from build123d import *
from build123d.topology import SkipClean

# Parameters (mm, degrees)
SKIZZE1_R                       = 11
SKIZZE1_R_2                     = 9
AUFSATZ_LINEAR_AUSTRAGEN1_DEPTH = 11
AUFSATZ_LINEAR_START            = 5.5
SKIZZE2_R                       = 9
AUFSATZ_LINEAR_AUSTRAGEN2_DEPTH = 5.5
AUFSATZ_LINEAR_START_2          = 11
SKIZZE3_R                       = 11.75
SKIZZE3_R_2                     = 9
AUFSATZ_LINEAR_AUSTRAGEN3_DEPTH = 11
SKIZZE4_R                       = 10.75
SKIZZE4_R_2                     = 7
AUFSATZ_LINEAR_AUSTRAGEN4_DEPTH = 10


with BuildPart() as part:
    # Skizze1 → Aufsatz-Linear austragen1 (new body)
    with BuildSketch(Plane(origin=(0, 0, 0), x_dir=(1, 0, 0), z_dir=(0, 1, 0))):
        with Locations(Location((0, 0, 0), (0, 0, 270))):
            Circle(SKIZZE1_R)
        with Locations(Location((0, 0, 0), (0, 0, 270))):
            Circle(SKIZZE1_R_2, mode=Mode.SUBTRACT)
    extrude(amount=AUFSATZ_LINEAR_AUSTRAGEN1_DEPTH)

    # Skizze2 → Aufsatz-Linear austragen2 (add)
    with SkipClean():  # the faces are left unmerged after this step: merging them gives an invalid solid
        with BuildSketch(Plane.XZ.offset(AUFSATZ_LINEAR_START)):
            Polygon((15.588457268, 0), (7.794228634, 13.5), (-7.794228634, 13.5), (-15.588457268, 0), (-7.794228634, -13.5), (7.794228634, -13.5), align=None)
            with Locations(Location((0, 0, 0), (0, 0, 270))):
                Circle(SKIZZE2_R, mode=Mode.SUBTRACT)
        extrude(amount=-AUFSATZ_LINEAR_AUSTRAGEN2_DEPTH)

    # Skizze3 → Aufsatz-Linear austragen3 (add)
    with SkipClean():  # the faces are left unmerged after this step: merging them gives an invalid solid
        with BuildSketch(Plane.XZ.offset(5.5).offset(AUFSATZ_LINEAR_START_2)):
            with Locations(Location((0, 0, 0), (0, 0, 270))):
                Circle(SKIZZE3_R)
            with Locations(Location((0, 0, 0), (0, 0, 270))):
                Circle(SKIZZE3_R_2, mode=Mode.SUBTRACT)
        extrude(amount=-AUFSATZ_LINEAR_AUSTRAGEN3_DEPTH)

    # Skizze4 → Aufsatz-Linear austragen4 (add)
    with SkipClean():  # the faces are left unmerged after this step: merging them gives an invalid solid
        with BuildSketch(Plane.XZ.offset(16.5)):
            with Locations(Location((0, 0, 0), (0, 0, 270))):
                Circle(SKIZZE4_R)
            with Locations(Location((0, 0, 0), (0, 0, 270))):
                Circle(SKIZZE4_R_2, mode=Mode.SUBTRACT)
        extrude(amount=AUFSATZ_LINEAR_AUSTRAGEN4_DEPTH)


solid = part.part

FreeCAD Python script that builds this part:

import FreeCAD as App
import Part
import Sketcher
from FreeCAD import Vector
Q = App.Units.Quantity


def add_polygon(sketch, points):
    """Adds a closed chain of lines whose ends are joined by coincident constraints."""
    first, n = sketch.GeometryCount, len(points)
    for a, b in zip(points, points[1:] + points[:1]):
        sketch.addGeometry(Part.LineSegment(App.Vector(*a, 0), App.Vector(*b, 0)), False)
    for i in range(n):
        sketch.addConstraint(Sketcher.Constraint("Coincident", first + i, 2, first + (i + 1) % n, 1))

doc = App.newDocument("Part")
params = doc.addObject("Spreadsheet::Sheet", "Params")
for row, (alias, value) in enumerate([
    ("sketch1_diameter", "22 mm"),
    ("sketch1_diameter2", "18 mm"),
    ("pad1_length", "11 mm"),
    ("sketch2_diameter", "18 mm"),
    ("pad2_length", "5.5 mm"),
    ("sketch3_diameter", "18 mm"),
    ("sketch3_diameter2", "23.5 mm"),
    ("pad3_length", "11 mm"),
    ("sketch4_diameter", "14 mm"),
    ("sketch4_diameter2", "21.5 mm"),
    ("pad4_length", "10 mm"),
], start=1):
    params.set(f"A{row}", alias)
    params.set(f"B{row}", "=" + value)
    params.setAlias(f"B{row}", alias)

body = doc.addObject("PartDesign::Body", "Body")

# Sketch on XZ plane
sketch1 = body.newObject("Sketcher::SketchObject", "Sketch")
sketch1.AttachmentSupport = (doc.getObject("XZ_Plane"), [""])
sketch1.MapMode = "FlatFace"
sketch1.addGeometry([
    Part.Circle(Vector(0, 0, 0), Vector(0, 0, 1), 11),
    Part.Circle(Vector(0, 0, 0), Vector(0, 0, 1), 9),
], False)
sketch1.addConstraint([
    Sketcher.Constraint("Coincident", 0, 3, -1, 1),
    Sketcher.Constraint("Coincident", 1, 3, -1, 1),
    Sketcher.Constraint("Diameter", 0, 22.0),
    Sketcher.Constraint("Diameter", 1, 18.0),
])
sketch1.setExpression("Constraints[2]", "Params.sketch1_diameter")
sketch1.setExpression("Constraints[3]", "Params.sketch1_diameter2")
pad1 = body.newObject("PartDesign::Pad", "Pad")
pad1.Profile = sketch1
pad1.setExpression("Length", "Params.pad1_length")
pad1.Reversed = True

# Sketch on XZ plane
sketch2 = body.newObject("Sketcher::SketchObject", "Sketch001")
sketch2.AttachmentSupport = (doc.getObject("XZ_Plane"), [""])
sketch2.MapMode = "FlatFace"
sketch2.AttachmentOffset = App.Placement(Vector(0, 0, 5.5), App.Rotation())
add_polygon(sketch2, [(16, 0), (8, 14), (-8, 14), (-16, 0), (-8, -14), (8, -14)])  # lines 0-5
sketch2.addGeometry(Part.Circle(Vector(0, 0, 0), Vector(0, 0, 1), 9), False)  # 6
sketch2.addConstraint([
    Sketcher.Constraint("Horizontal", 1),
    Sketcher.Constraint("Horizontal", 4),
    Sketcher.Constraint("Coincident", 6, 3, -1, 1),
    Sketcher.Constraint("Symmetric", 0, 2, 3, 2, -1, 1),
    Sketcher.Constraint("Symmetric", 2, 2, 5, 2, -1, 1),
    Sketcher.Constraint("PointOnObject", 2, 2, -1),
    Sketcher.Constraint("Parallel", 2, 5),
    Sketcher.Constraint("Vertical", 1, 2, 3, 2),
    Sketcher.Constraint("Diameter", 6, 18.0),
    Sketcher.Constraint("Angle", 0, Q("120 deg")),
    Sketcher.Constraint("DistanceY", 3, 2, 1, 2, 27.0),
    Sketcher.Constraint("DistanceX", 1, 2, 1, 1, 15.588457),
])
sketch2.setExpression("Constraints[14]", "Params.sketch2_diameter")
pad2 = body.newObject("PartDesign::Pad", "Pad001")
pad2.Profile = sketch2
pad2.setExpression("Length", "Params.pad2_length")
pad2.Reversed = True

# Sketch on XZ plane
sketch3 = body.newObject("Sketcher::SketchObject", "Sketch002")
sketch3.AttachmentSupport = (doc.getObject("XZ_Plane"), [""])
sketch3.MapMode = "FlatFace"
sketch3.AttachmentOffset = App.Placement(Vector(0, 0, 16.5), App.Rotation())
sketch3.addGeometry([
    Part.Circle(Vector(0, 0, 0), Vector(0, 0, 1), 12),
    Part.Circle(Vector(0, 0, 0), Vector(0, 0, 1), 9),
], False)
sketch3.addConstraint([
    Sketcher.Constraint("Coincident", 0, 3, -1, 1),
    Sketcher.Constraint("Coincident", 1, 3, -1, 1),
    Sketcher.Constraint("Diameter", 1, 18.0),
    Sketcher.Constraint("Diameter", 0, 23.5),
])
sketch3.setExpression("Constraints[2]", "Params.sketch3_diameter")
sketch3.setExpression("Constraints[3]", "Params.sketch3_diameter2")
pad3 = body.newObject("PartDesign::Pad", "Pad002")
pad3.Profile = sketch3
pad3.setExpression("Length", "Params.pad3_length")
pad3.Reversed = True

# Sketch on XZ plane
sketch4 = body.newObject("Sketcher::SketchObject", "Sketch003")
sketch4.AttachmentSupport = (doc.getObject("XZ_Plane"), [""])
sketch4.MapMode = "FlatFace"
sketch4.AttachmentOffset = App.Placement(Vector(0, 0, 16.5), App.Rotation())
sketch4.addGeometry([
    Part.Circle(Vector(0, 0, 0), Vector(0, 0, 1), 11),
    Part.Circle(Vector(0, 0, 0), Vector(0, 0, 1), 7),
], False)
sketch4.addConstraint([
    Sketcher.Constraint("Coincident", 0, 3, -1, 1),
    Sketcher.Constraint("Coincident", 1, 3, -1, 1),
    Sketcher.Constraint("Diameter", 1, 14.0),
    Sketcher.Constraint("Diameter", 0, 21.5),
])
sketch4.setExpression("Constraints[2]", "Params.sketch4_diameter")
sketch4.setExpression("Constraints[3]", "Params.sketch4_diameter2")
pad4 = body.newObject("PartDesign::Pad", "Pad003")
pad4.Profile = sketch4
pad4.setExpression("Length", "Params.pad4_length")

doc.recompute()
